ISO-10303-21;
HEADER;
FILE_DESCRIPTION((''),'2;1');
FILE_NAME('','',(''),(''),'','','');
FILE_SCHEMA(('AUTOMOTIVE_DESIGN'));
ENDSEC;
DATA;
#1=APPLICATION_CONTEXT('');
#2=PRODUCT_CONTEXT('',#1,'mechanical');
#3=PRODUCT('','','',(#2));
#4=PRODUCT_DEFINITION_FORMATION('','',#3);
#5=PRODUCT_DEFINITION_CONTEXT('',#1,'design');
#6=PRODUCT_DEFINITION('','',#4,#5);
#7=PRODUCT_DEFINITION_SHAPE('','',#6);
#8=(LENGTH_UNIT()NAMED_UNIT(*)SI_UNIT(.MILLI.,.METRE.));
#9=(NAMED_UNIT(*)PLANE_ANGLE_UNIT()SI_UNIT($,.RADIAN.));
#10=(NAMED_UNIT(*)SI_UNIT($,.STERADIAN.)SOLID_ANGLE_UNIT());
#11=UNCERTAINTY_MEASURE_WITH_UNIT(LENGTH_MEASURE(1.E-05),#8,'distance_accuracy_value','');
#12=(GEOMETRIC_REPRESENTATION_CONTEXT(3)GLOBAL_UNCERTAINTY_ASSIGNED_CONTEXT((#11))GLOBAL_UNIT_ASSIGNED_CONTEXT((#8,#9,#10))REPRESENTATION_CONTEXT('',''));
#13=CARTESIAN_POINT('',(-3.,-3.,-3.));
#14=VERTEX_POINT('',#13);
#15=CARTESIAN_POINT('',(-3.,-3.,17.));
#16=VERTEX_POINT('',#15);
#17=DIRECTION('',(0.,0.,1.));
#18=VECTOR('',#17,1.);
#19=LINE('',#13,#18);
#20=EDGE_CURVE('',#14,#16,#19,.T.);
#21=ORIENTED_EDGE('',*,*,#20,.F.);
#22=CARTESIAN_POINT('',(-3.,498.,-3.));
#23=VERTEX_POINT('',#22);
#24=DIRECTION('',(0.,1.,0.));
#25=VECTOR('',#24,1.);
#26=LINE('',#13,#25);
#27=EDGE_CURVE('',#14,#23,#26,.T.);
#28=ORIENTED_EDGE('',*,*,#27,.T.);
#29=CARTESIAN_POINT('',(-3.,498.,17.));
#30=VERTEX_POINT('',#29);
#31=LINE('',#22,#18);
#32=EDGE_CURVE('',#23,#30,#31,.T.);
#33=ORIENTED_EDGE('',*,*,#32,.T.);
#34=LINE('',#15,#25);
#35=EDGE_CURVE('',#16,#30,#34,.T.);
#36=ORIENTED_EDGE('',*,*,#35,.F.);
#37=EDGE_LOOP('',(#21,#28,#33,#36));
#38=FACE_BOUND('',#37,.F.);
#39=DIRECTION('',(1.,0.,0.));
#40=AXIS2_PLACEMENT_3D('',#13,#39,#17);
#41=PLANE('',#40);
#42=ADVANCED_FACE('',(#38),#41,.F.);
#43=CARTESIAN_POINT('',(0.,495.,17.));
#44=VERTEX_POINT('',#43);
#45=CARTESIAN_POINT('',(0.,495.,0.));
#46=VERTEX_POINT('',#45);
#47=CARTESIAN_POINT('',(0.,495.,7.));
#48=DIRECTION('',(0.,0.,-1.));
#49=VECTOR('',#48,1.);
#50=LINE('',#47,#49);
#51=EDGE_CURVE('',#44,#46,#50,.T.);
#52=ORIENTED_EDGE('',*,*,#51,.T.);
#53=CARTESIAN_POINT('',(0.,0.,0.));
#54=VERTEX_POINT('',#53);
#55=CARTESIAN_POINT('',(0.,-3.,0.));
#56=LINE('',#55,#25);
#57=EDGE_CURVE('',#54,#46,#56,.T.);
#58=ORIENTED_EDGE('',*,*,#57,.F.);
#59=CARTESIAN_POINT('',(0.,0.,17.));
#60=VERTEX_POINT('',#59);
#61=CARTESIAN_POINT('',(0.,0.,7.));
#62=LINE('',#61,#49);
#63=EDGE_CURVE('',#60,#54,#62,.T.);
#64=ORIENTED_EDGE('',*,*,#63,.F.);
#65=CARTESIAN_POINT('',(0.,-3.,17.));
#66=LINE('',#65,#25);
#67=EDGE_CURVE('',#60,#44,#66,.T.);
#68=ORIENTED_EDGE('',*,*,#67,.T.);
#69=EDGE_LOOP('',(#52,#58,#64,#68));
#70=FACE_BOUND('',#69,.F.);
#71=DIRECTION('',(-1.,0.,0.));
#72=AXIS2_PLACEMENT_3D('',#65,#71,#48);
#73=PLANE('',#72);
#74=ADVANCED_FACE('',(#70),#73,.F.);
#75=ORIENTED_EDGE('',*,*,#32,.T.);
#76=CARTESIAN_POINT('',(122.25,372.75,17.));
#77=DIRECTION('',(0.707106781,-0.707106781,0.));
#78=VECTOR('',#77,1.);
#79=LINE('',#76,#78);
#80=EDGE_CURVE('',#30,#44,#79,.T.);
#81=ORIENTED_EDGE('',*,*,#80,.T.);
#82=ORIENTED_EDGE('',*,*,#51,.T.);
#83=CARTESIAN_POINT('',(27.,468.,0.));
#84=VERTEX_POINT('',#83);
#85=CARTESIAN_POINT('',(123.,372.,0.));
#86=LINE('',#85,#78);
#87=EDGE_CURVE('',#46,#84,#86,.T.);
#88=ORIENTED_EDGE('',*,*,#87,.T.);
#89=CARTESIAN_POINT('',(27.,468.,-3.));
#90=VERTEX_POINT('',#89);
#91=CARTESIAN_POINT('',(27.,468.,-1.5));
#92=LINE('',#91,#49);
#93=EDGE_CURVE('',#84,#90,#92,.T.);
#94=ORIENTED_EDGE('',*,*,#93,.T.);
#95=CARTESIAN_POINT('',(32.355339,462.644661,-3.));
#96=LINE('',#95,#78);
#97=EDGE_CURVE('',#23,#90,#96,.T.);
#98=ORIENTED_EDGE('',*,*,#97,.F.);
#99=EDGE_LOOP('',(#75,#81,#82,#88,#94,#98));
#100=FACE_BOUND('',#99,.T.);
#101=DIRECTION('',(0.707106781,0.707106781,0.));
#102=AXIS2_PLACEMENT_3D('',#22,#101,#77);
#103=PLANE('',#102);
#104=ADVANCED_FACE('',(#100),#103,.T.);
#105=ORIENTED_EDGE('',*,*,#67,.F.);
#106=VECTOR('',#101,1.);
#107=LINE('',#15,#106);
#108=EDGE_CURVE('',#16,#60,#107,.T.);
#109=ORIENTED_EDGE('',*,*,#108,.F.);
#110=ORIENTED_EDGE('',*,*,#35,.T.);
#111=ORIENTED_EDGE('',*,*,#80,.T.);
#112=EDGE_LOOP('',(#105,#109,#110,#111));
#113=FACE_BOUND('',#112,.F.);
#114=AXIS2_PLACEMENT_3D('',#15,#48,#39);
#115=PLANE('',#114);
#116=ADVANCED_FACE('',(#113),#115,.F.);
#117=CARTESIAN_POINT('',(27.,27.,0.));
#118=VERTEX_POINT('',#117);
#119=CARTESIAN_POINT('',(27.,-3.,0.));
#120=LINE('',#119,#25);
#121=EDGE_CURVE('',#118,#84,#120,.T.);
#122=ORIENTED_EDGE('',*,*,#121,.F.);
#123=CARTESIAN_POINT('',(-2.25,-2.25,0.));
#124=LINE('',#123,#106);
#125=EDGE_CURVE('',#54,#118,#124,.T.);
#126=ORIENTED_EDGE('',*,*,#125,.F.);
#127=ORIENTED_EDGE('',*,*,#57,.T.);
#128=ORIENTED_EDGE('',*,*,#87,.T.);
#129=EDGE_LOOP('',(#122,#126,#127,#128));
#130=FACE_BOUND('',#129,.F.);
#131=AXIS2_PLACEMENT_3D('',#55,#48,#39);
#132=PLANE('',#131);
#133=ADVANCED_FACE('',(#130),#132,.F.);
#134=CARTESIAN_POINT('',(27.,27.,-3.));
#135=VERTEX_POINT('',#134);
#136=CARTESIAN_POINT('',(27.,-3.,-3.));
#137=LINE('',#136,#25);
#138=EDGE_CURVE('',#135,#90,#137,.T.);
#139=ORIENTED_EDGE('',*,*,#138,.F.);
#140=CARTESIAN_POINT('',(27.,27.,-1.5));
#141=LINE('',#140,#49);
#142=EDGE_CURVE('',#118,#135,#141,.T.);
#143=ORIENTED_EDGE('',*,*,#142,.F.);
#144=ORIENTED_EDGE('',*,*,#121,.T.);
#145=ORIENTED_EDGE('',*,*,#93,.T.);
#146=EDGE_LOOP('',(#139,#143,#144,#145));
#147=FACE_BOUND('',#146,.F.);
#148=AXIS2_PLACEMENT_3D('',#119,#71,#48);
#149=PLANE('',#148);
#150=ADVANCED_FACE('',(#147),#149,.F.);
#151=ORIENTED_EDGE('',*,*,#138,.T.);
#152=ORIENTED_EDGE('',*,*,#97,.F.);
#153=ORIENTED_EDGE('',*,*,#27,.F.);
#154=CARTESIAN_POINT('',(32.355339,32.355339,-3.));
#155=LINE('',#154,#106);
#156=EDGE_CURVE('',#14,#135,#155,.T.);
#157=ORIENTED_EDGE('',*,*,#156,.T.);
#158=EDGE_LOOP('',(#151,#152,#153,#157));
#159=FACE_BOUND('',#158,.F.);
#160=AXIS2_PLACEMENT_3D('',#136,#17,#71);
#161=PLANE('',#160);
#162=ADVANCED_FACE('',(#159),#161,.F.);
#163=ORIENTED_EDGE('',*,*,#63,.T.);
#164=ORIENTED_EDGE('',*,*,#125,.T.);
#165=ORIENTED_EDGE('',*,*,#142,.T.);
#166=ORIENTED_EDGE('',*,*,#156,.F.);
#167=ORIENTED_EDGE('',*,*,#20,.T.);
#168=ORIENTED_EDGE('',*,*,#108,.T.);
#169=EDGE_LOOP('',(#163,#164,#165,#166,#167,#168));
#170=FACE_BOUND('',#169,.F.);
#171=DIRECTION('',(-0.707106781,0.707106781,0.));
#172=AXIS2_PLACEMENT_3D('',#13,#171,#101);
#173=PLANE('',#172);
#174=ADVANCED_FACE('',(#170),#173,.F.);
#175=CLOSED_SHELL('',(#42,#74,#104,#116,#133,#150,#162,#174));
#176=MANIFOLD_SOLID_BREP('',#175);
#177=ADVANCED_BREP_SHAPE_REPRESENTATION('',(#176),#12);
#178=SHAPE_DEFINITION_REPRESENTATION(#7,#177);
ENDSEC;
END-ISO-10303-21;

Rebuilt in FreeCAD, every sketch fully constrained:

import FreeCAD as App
import Part
import Sketcher
from FreeCAD import Vector

doc = App.newDocument("Part")
body = doc.addObject("PartDesign::Body", "Body")

# Sketch on XY plane
sketch1 = body.newObject("Sketcher::SketchObject", "Sketch")
sketch1.AttachmentSupport = (doc.getObject("XY_Plane"), [""])
sketch1.MapMode = "FlatFace"
sketch1.addGeometry(Part.LineSegment(Vector(0, 100, 0), Vector(0, 0, 0)), False)
sketch1.addGeometry(Part.LineSegment(Vector(0, 0, 0), Vector(100, 0, 0)), False)
sketch1.addGeometry(Part.LineSegment(Vector(100, 0, 0), Vector(100, 100, 0)), False)
sketch1.addGeometry(Part.LineSegment(Vector(100, 100, 0), Vector(0, 100, 0)), False)
sketch1.addConstraint(Sketcher.Constraint("Coincident", 0, 2, 1, 1))
sketch1.addConstraint(Sketcher.Constraint("Coincident", 1, 2, 2, 1))
sketch1.addConstraint(Sketcher.Constraint("Coincident", 2, 2, 3, 1))
sketch1.addConstraint(Sketcher.Constraint("Coincident", 3, 2, 0, 1))
sketch1.addConstraint(Sketcher.Constraint("Vertical", 0))
sketch1.addConstraint(Sketcher.Constraint("Horizontal", 1))
sketch1.addConstraint(Sketcher.Constraint("Vertical", 2))
sketch1.addConstraint(Sketcher.Constraint("Horizontal", 3))
sketch1.addConstraint(Sketcher.Constraint("Coincident", 0, 2, -1, 1))
sketch1.addConstraint(Sketcher.Constraint("Equal", 3, 0))
sketch1.addConstraint(Sketcher.Constraint("DistanceX", 1, 1, 1, 2, 100.0))
pad1 = body.newObject("PartDesign::Pad", "Pad")
pad1.Profile = sketch1
pad1.Length = 30
body2 = doc.addObject("PartDesign::Body", "Body001")
doc.recompute()

body.Placement = App.Placement(Vector(-3, 498, -3), App.Rotation(Vector(0, 0, 1), 315))
boolean = body2.newObject("PartDesign::Boolean", "Boolean")
boolean.Type = "Fuse"
boolean.addObjects([body])
body3 = doc.addObject("PartDesign::Body", "Body002")

# Sketch on XY plane
sketch2 = body3.newObject("Sketcher::SketchObject", "Sketch001")
sketch2.AttachmentSupport = (doc.getObject("XY_Plane002"), [""])
sketch2.MapMode = "FlatFace"
sketch2.addGeometry(Part.LineSegment(Vector(0, 100, 0), Vector(0, 0, 0)), False)
sketch2.addGeometry(Part.LineSegment(Vector(0, 0, 0), Vector(30, 0, 0)), False)
sketch2.addGeometry(Part.LineSegment(Vector(30, 0, 0), Vector(30, 100, 0)), False)
sketch2.addGeometry(Part.LineSegment(Vector(30, 100, 0), Vector(0, 100, 0)), False)
sketch2.addConstraint(Sketcher.Constraint("Coincident", 0, 2, 1, 1))
sketch2.addConstraint(Sketcher.Constraint("Coincident", 1, 2, 2, 1))
sketch2.addConstraint(Sketcher.Constraint("Coincident", 2, 2, 3, 1))
sketch2.addConstraint(Sketcher.Constraint("Coincident", 3, 2, 0, 1))
sketch2.addConstraint(Sketcher.Constraint("Vertical", 0))
sketch2.addConstraint(Sketcher.Constraint("Horizontal", 1))
sketch2.addConstraint(Sketcher.Constraint("Vertical", 2))
sketch2.addConstraint(Sketcher.Constraint("Horizontal", 3))
sketch2.addConstraint(Sketcher.Constraint("Coincident", 0, 2, -1, 1))
sketch2.addConstraint(Sketcher.Constraint("DistanceX", 1, 1, 1, 2, 30.0))
sketch2.addConstraint(Sketcher.Constraint("DistanceY", 0, 2, 0, 1, 100.0))
pad2 = body3.newObject("PartDesign::Pad", "Pad001")
pad2.Profile = sketch2
pad2.Length = 30
body4 = doc.addObject("PartDesign::Body", "Body003")
doc.recompute()

body3.Placement = App.Placement(Vector(-3, -3, -3), App.Rotation(Vector(0, 0, 1), 315))
boolean2 = body4.newObject("PartDesign::Boolean", "Boolean001")
boolean2.Type = "Fuse"
boolean2.addObjects([body3])
body5 = doc.addObject("PartDesign::Body", "Body004")

# Sketch on XZ plane
sketch3 = body5.newObject("Sketcher::SketchObject", "Sketch002")
sketch3.AttachmentSupport = (doc.getObject("XZ_Plane004"), [""])
sketch3.MapMode = "FlatFace"
sketch3.AttachmentOffset = App.Placement(Vector(0, 0, 3), App.Rotation())
sketch3.addGeometry(Part.LineSegment(Vector(0, 0, 0), Vector(0, 17, 0)), False)
sketch3.addGeometry(Part.LineSegment(Vector(0, 17, 0), Vector(-3, 17, 0)), False)
sketch3.addGeometry(Part.LineSegment(Vector(-3, 17, 0), Vector(-3, -3, 0)), False)
sketch3.addGeometry(Part.LineSegment(Vector(-3, -3, 0), Vector(27, -3, 0)), False)
sketch3.addGeometry(Part.LineSegment(Vector(27, -3, 0), Vector(27, 0, 0)), False)
sketch3.addGeometry(Part.LineSegment(Vector(27, 0, 0), Vector(0, 0, 0)), False)
sketch3.addConstraint(Sketcher.Constraint("Coincident", 0, 2, 1, 1))
sketch3.addConstraint(Sketcher.Constraint("Coincident", 1, 2, 2, 1))
sketch3.addConstraint(Sketcher.Constraint("Coincident", 2, 2, 3, 1))
sketch3.addConstraint(Sketcher.Constraint("Coincident", 3, 2, 4, 1))
sketch3.addConstraint(Sketcher.Constraint("Coincident", 4, 2, 5, 1))
sketch3.addConstraint(Sketcher.Constraint("Coincident", 5, 2, 0, 1))
sketch3.addConstraint(Sketcher.Constraint("Vertical", 0))
sketch3.addConstraint(Sketcher.Constraint("Horizontal", 1))
sketch3.addConstraint(Sketcher.Constraint("Vertical", 2))
sketch3.addConstraint(Sketcher.Constraint("Horizontal", 3))
sketch3.addConstraint(Sketcher.Constraint("Vertical", 4))
sketch3.addConstraint(Sketcher.Constraint("Horizontal", 5))
sketch3.addConstraint(Sketcher.Constraint("Coincident", 5, 2, -1, 1))
sketch3.addConstraint(Sketcher.Constraint("Equal", 1, 4))
sketch3.addConstraint(Sketcher.Constraint("DistanceX", 1, 2, 1, 1, 3.0))
sketch3.addConstraint(Sketcher.Constraint("DistanceX", 3, 1, 3, 2, 30.0))
sketch3.addConstraint(Sketcher.Constraint("DistanceY", 0, 1, 0, 2, 17.0))
pad3 = body5.newObject("PartDesign::Pad", "Pad002")
pad3.Profile = sketch3
pad3.Length = 501
pad3.Reversed = True
doc.recompute()

boolean3 = body5.newObject("PartDesign::Boolean", "Boolean002")
boolean3.Type = "Cut"
boolean3.addObjects([body4])
doc.recompute()

boolean4 = body5.newObject("PartDesign::Boolean", "Boolean003")
boolean4.Type = "Cut"
boolean4.addObjects([body2])

doc.recompute()
